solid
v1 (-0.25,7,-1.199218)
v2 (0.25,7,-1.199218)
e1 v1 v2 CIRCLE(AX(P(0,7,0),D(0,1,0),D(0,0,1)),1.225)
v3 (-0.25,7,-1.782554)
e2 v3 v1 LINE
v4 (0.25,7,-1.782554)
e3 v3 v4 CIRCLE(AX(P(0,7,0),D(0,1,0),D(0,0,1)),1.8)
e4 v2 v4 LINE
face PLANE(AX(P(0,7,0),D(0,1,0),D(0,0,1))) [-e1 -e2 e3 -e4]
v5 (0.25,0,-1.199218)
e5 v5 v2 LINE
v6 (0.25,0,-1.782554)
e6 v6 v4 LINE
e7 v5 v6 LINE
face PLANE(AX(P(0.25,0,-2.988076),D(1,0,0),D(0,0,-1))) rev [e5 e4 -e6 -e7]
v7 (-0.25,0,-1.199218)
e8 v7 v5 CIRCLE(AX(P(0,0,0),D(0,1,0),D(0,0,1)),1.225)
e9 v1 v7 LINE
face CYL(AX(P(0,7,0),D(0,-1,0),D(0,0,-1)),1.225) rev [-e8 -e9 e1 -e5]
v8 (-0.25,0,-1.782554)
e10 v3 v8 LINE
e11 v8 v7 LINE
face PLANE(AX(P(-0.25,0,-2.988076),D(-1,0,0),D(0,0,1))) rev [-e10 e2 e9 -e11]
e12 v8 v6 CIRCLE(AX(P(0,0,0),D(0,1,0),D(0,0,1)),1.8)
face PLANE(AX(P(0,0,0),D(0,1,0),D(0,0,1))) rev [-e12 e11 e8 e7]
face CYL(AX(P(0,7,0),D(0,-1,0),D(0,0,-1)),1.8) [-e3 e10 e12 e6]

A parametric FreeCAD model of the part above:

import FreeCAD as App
import Part
import Sketcher
from FreeCAD import Vector


def add_polygon(sketch, points):
    """Adds a closed chain of lines whose ends are joined by coincident constraints."""
    first, n = sketch.GeometryCount, len(points)
    for a, b in zip(points, points[1:] + points[:1]):
        sketch.addGeometry(Part.LineSegment(App.Vector(*a, 0), App.Vector(*b, 0)), False)
    for i in range(n):
        sketch.addConstraint(Sketcher.Constraint("Coincident", first + i, 2, first + (i + 1) % n, 1))

doc = App.newDocument("Part")
params = doc.addObject("Spreadsheet::Sheet", "Params")
for row, (alias, value) in enumerate([
    ("sketch1_diameter", "3.6 mm"),
    ("sketch1_diameter2", "2.45 mm"),
    ("pad1_length", "7 mm"),
    ("sketch2_width", "0.5 mm"),
], start=1):
    params.set(f"A{row}", alias)
    params.set(f"B{row}", "=" + value)
    params.setAlias(f"B{row}", alias)

body = doc.addObject("PartDesign::Body", "Body")

# Sketch on XZ plane
sketch1 = doc.addObject("Sketcher::SketchObject", "Sketch")
body.addObject(sketch1)
sketch1.AttachmentSupport = (doc.XZ_Plane, [""])
sketch1.MapMode = "FlatFace"
sketch1.addGeometry([
    Part.Circle(Vector(0, 0, 0), Vector(0, 0, 1), 1.8),
    Part.Circle(Vector(0, 0, 0), Vector(0, 0, 1), 1.2),
], False)
sketch1.addConstraint([
    Sketcher.Constraint("Coincident", 0, 3, -1, 1),
    Sketcher.Constraint("Coincident", 1, 3, -1, 1),
    Sketcher.Constraint("Diameter", 0, 3.6),
    Sketcher.Constraint("Diameter", 1, 2.45),
])
sketch1.setExpression("Constraints[2]", "Params.sketch1_diameter")
sketch1.setExpression("Constraints[3]", "Params.sketch1_diameter2")
pad1 = doc.addObject("PartDesign::Pad", "Pad")
body.addObject(pad1)
pad1.Profile = sketch1
pad1.setExpression("Length", "Params.pad1_length")
pad1.Reversed = True

# Sketch on XZ plane
sketch2 = doc.addObject("Sketcher::SketchObject", "Sketch001")
body.addObject(sketch2)
sketch2.AttachmentSupport = (doc.XZ_Plane, [""])
sketch2.MapMode = "FlatFace"
sketch2.AttachmentOffset = App.Placement(Vector(0, 0, -7), App.Rotation())
add_polygon(sketch2, [(-0.2, -3), (-0.2, -0.6), (0.2, -0.6), (0.2, -3)])  # lines 0-3
sketch2.addConstraint([
    Sketcher.Constraint("Vertical", 0),
    Sketcher.Constraint("Horizontal", 1),
    Sketcher.Constraint("Vertical", 2),
    Sketcher.Constraint("Horizontal", 3),
    Sketcher.Constraint("DistanceX", 1, 1, 1, 2, 0.5),
    Sketcher.Constraint("DistanceX", 0, 2, -1, 1, 0.25),
    Sketcher.Constraint("DistanceY", 0, 1, 0, 2, 2.376153),
    Sketcher.Constraint("DistanceY", 0, 2, -1, 1, 0.611924),
])
sketch2.setExpression("Constraints[8]", "Params.sketch2_width")
pocket1 = doc.addObject("PartDesign::Pocket", "Pocket")
body.addObject(pocket1)
pocket1.Profile = sketch2
pocket1.Type = "ThroughAll"
pocket1.Reversed = True

doc.recompute()
